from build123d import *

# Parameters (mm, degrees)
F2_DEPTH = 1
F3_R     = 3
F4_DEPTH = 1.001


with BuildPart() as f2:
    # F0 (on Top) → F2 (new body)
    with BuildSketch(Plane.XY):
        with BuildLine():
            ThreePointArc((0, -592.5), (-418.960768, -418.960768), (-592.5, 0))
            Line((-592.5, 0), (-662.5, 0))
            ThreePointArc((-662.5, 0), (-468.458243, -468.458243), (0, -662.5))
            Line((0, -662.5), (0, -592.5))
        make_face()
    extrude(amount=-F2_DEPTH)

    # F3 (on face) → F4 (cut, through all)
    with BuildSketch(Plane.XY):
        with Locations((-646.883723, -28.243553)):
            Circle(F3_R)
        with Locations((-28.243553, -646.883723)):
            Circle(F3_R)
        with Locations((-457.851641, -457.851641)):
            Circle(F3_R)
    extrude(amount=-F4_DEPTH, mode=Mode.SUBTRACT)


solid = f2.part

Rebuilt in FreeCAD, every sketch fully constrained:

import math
import FreeCAD as App
import Part
import Sketcher
from FreeCAD import Vector

doc = App.newDocument("Part")
params = doc.addObject("Spreadsheet::Sheet", "Params")
for row, (alias, value) in enumerate([
    ("sketch1_radius", "592.499999 mm"),
    ("sketch1_radius2", "662.499998 mm"),
    ("pad1_length", "1 mm"),
    ("sketch2_diameter", "6 mm"),
], start=1):
    params.set(f"A{row}", alias)
    params.set(f"B{row}", "=" + value)
    params.setAlias(f"B{row}", alias)

body = doc.addObject("PartDesign::Body", "Body")

# Sketch on XY plane
sketch1 = body.newObject("Sketcher::SketchObject", "Sketch")
sketch1.AttachmentSupport = (doc.getObject("XY_Plane"), [""])
sketch1.MapMode = "FlatFace"
sketch1.addGeometry([
    Part.ArcOfCircle(Part.Circle(Vector(0, 0, 0), Vector(0, 0, 1), 592), math.radians(180), math.radians(270)),
    Part.LineSegment(Vector(-592, 0, 0), Vector(-662, 0, 0)),
    Part.ArcOfCircle(Part.Circle(Vector(0, 0, 0), Vector(0, 0, 1), 662), math.radians(180), math.radians(270)),
    Part.LineSegment(Vector(0, -662, 0), Vector(0, -592, 0)),
], False)
sketch1.addConstraint([
    Sketcher.Constraint("Coincident", 0, 1, 1, 1),
    Sketcher.Constraint("Coincident", 1, 2, 2, 1),
    Sketcher.Constraint("Coincident", 2, 2, 3, 1),
    Sketcher.Constraint("Coincident", 3, 2, 0, 2),
    Sketcher.Constraint("Horizontal", 1),
    Sketcher.Constraint("Vertical", 3),
    Sketcher.Constraint("Coincident", 0, 3, -1, 1),
    Sketcher.Constraint("Coincident", 2, 3, -1, 1),
    Sketcher.Constraint("PointOnObject", 1, 2, -1),
    Sketcher.Constraint("PointOnObject", 3, 2, -2),
    Sketcher.Constraint("Radius", 0, 592.499999),
    Sketcher.Constraint("Radius", 2, 662.499998),
])
sketch1.setExpression("Constraints[10]", "Params.sketch1_radius")
sketch1.setExpression("Constraints[11]", "Params.sketch1_radius2")
pad1 = body.newObject("PartDesign::Pad", "Pad")
pad1.Profile = sketch1
pad1.setExpression("Length", "Params.pad1_length")
pad1.Reversed = True

# Sketch on XY plane
sketch2 = body.newObject("Sketcher::SketchObject", "Sketch001")
sketch2.AttachmentSupport = (doc.getObject("XY_Plane"), [""])
sketch2.MapMode = "FlatFace"
sketch2.addGeometry([
    Part.Circle(Vector(-646.9, -28.2, 0), Vector(0, 0, 1), 3),
    Part.Circle(Vector(-28.2, -646.9, 0), Vector(0, 0, 1), 3),
    Part.Circle(Vector(-457.9, -457.9, 0), Vector(0, 0, 1), 3),
], False)
sketch2.addConstraint([
    Sketcher.Constraint("Equal", 0, 1),
    Sketcher.Constraint("Equal", 1, 2),
    Sketcher.Constraint("Diameter", 0, 6.0),
    Sketcher.Constraint("DistanceX", 2, 3, -1, 1, 457.851641),
    Sketcher.Constraint("DistanceY", 2, 3, -1, 1, 457.851641),
    Sketcher.Constraint("DistanceX", 0, 3, 1, 3, 618.64017),
    Sketcher.Constraint("DistanceY", 1, 3, 0, 3, 618.64017),
    Sketcher.Constraint("DistanceX", 0, 3, -1, 1, 646.883723),
    Sketcher.Constraint("DistanceY", 0, 3, -1, 1, 28.243553),
])
sketch2.setExpression("Constraints[2]", "Params.sketch2_diameter")
pocket1 = body.newObject("PartDesign::Pocket", "Pocket")
pocket1.Profile = sketch2
pocket1.Type = "ThroughAll"

doc.recompute()
